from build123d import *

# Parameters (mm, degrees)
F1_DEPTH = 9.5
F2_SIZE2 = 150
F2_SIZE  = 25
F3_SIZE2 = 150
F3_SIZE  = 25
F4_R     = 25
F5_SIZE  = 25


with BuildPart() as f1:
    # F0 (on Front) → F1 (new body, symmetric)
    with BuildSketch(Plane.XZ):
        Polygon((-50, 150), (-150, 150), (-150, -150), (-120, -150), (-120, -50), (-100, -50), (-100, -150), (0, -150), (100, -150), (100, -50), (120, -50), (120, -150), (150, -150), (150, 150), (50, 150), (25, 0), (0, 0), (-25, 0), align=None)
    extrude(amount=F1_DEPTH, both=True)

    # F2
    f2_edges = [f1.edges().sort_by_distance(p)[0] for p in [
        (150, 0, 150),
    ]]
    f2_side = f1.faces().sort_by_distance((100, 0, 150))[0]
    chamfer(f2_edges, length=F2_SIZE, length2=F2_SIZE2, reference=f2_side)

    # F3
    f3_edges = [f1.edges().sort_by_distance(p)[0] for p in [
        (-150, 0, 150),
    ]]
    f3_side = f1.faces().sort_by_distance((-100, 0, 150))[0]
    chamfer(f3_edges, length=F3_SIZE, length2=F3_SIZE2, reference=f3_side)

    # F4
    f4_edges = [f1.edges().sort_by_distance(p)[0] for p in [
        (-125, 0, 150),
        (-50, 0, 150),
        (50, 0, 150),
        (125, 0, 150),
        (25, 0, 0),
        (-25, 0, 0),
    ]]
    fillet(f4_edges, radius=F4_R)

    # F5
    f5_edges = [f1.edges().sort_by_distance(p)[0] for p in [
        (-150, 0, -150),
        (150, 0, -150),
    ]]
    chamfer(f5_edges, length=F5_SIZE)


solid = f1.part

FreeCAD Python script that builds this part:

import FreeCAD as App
import Part
import Sketcher

V = App.Vector
Q = App.Units.Quantity


def edges_at(feature, points):
    """Names of the edges that pass closest to the given points."""
    edges = feature.Shape.Edges
    near = lambda p: min(range(len(edges)), key=lambda i: edges[i].distToShape(Part.Vertex(*p))[0])
    return sorted({f"Edge{near(p) + 1}" for p in points})

doc = App.newDocument("Part")
body = doc.addObject("PartDesign::Body", "Body")

sketch1 = body.newObject("Sketcher::SketchObject", "Sketch")
sketch1.AttachmentSupport = (doc.getObject("XZ_Plane"), [""])
sketch1.MapMode = "FlatFace"
sketch1.addGeometry([
    Part.LineSegment(V(-50, 150, 0), V(-150, 150, 0)),
    Part.LineSegment(V(-150, 150, 0), V(-150, -150, 0)),
    Part.LineSegment(V(-150, -150, 0), V(-120, -150, 0)),
    Part.LineSegment(V(-120, -150, 0), V(-120, -50, 0)),
    Part.LineSegment(V(-120, -50, 0), V(-100, -50, 0)),
    Part.LineSegment(V(-100, -50, 0), V(-100, -150, 0)),
    Part.LineSegment(V(-100, -150, 0), V(100, -150, 0)),
    Part.LineSegment(V(100, -150, 0), V(100, -50, 0)),
    Part.LineSegment(V(100, -50, 0), V(120, -50, 0)),
    Part.LineSegment(V(120, -50, 0), V(120, -150, 0)),
    Part.LineSegment(V(120, -150, 0), V(150, -150, 0)),
    Part.LineSegment(V(150, -150, 0), V(150, 150, 0)),
    Part.LineSegment(V(150, 150, 0), V(50, 150, 0)),
    Part.LineSegment(V(50, 150, 0), V(25, 0, 0)),
    Part.LineSegment(V(25, 0, 0), V(-25, 0, 0)),
    Part.LineSegment(V(-25, 0, 0), V(-50, 150, 0)),
], False)
sketch1.addConstraint([
    Sketcher.Constraint("Coincident", 0, 2, 1, 1),
    Sketcher.Constraint("Coincident", 1, 2, 2, 1),
    Sketcher.Constraint("Coincident", 2, 2, 3, 1),
    Sketcher.Constraint("Coincident", 3, 2, 4, 1),
    Sketcher.Constraint("Coincident", 4, 2, 5, 1),
    Sketcher.Constraint("Coincident", 5, 2, 6, 1),
    Sketcher.Constraint("Coincident", 6, 2, 7, 1),
    Sketcher.Constraint("Coincident", 7, 2, 8, 1),
    Sketcher.Constraint("Coincident", 8, 2, 9, 1),
    Sketcher.Constraint("Coincident", 9, 2, 10, 1),
    Sketcher.Constraint("Coincident", 10, 2, 11, 1),
    Sketcher.Constraint("Coincident", 11, 2, 12, 1),
    Sketcher.Constraint("Coincident", 12, 2, 13, 1),
    Sketcher.Constraint("Coincident", 13, 2, 14, 1),
    Sketcher.Constraint("Coincident", 14, 2, 15, 1),
    Sketcher.Constraint("Coincident", 15, 2, 0, 1),
    Sketcher.Constraint("Horizontal", 0),
    Sketcher.Constraint("Vertical", 1),
    Sketcher.Constraint("Horizontal", 2),
    Sketcher.Constraint("Vertical", 3),
    Sketcher.Constraint("Horizontal", 4),
    Sketcher.Constraint("Vertical", 5),
    Sketcher.Constraint("Horizontal", 6),
    Sketcher.Constraint("Vertical", 7),
    Sketcher.Constraint("Horizontal", 8),
    Sketcher.Constraint("Vertical", 9),
    Sketcher.Constraint("Horizontal", 10),
    Sketcher.Constraint("Vertical", 11),
    Sketcher.Constraint("Horizontal", 12),
    Sketcher.Constraint("Horizontal", 14),
    Sketcher.Constraint("Symmetric", 0, 2, 10, 2, -1, 1),
    Sketcher.Constraint("Symmetric", 13, 2, 14, 2, -1, 1),
    Sketcher.Constraint("Symmetric", 4, 2, 7, 2, -2),
    Sketcher.Constraint("Symmetric", 2, 2, 9, 2, -2),
    Sketcher.Constraint("Symmetric", 12, 2, 15, 2, -2),
    Sketcher.Constraint("Horizontal", 2, 2, 5, 2),
    Sketcher.Constraint("Equal", 12, 3),
    Sketcher.Constraint("DistanceX", 0, 2, 0, 1, Q("100 mm")),
    Sketcher.Constraint("DistanceX", 2, 1, 2, 2, Q("30 mm")),
    Sketcher.Constraint("DistanceX", 4, 1, 4, 2, Q("20 mm")),
    Sketcher.Constraint("DistanceX", 6, 1, 6, 2, Q("200 mm")),
    Sketcher.Constraint("DistanceX", 14, 2, 14, 1, Q("50 mm")),
    Sketcher.Constraint("DistanceY", 1, 2, 1, 1, Q("300 mm")),
])
pad1 = body.newObject("PartDesign::Pad", "Pad")
pad1.Profile = sketch1
pad1.Length = 19
pad1.Midplane = True
doc.recompute()

chamfer = body.newObject("PartDesign::Chamfer", "Chamfer")
chamfer.Base = (pad1, edges_at(pad1, [(150, 0, 150)]))
chamfer.ChamferType = "Two distances"
chamfer.Size = 25
chamfer.Size2 = 150
chamfer.FlipDirection = True
doc.recompute()

chamfer2 = body.newObject("PartDesign::Chamfer", "Chamfer001")
chamfer2.Base = (chamfer, edges_at(chamfer, [(-150, 0, 150)]))
chamfer2.ChamferType = "Two distances"
chamfer2.Size = 25
chamfer2.Size2 = 150
doc.recompute()

fillet = body.newObject("PartDesign::Fillet", "Fillet")
fillet.Base = (chamfer2, edges_at(chamfer2, [
    (-125, 0, 150),
    (-50, 0, 150),
    (50, 0, 150),
    (125, 0, 150),
    (25, 0, 0),
    (-25, 0, 0),
]))
fillet.Radius = 25
doc.recompute()

chamfer3 = body.newObject("PartDesign::Chamfer", "Chamfer002")
chamfer3.Base = (fillet, edges_at(fillet, [(-150, 0, -150), (150, 0, -150)]))
chamfer3.Size = 25

doc.recompute()
